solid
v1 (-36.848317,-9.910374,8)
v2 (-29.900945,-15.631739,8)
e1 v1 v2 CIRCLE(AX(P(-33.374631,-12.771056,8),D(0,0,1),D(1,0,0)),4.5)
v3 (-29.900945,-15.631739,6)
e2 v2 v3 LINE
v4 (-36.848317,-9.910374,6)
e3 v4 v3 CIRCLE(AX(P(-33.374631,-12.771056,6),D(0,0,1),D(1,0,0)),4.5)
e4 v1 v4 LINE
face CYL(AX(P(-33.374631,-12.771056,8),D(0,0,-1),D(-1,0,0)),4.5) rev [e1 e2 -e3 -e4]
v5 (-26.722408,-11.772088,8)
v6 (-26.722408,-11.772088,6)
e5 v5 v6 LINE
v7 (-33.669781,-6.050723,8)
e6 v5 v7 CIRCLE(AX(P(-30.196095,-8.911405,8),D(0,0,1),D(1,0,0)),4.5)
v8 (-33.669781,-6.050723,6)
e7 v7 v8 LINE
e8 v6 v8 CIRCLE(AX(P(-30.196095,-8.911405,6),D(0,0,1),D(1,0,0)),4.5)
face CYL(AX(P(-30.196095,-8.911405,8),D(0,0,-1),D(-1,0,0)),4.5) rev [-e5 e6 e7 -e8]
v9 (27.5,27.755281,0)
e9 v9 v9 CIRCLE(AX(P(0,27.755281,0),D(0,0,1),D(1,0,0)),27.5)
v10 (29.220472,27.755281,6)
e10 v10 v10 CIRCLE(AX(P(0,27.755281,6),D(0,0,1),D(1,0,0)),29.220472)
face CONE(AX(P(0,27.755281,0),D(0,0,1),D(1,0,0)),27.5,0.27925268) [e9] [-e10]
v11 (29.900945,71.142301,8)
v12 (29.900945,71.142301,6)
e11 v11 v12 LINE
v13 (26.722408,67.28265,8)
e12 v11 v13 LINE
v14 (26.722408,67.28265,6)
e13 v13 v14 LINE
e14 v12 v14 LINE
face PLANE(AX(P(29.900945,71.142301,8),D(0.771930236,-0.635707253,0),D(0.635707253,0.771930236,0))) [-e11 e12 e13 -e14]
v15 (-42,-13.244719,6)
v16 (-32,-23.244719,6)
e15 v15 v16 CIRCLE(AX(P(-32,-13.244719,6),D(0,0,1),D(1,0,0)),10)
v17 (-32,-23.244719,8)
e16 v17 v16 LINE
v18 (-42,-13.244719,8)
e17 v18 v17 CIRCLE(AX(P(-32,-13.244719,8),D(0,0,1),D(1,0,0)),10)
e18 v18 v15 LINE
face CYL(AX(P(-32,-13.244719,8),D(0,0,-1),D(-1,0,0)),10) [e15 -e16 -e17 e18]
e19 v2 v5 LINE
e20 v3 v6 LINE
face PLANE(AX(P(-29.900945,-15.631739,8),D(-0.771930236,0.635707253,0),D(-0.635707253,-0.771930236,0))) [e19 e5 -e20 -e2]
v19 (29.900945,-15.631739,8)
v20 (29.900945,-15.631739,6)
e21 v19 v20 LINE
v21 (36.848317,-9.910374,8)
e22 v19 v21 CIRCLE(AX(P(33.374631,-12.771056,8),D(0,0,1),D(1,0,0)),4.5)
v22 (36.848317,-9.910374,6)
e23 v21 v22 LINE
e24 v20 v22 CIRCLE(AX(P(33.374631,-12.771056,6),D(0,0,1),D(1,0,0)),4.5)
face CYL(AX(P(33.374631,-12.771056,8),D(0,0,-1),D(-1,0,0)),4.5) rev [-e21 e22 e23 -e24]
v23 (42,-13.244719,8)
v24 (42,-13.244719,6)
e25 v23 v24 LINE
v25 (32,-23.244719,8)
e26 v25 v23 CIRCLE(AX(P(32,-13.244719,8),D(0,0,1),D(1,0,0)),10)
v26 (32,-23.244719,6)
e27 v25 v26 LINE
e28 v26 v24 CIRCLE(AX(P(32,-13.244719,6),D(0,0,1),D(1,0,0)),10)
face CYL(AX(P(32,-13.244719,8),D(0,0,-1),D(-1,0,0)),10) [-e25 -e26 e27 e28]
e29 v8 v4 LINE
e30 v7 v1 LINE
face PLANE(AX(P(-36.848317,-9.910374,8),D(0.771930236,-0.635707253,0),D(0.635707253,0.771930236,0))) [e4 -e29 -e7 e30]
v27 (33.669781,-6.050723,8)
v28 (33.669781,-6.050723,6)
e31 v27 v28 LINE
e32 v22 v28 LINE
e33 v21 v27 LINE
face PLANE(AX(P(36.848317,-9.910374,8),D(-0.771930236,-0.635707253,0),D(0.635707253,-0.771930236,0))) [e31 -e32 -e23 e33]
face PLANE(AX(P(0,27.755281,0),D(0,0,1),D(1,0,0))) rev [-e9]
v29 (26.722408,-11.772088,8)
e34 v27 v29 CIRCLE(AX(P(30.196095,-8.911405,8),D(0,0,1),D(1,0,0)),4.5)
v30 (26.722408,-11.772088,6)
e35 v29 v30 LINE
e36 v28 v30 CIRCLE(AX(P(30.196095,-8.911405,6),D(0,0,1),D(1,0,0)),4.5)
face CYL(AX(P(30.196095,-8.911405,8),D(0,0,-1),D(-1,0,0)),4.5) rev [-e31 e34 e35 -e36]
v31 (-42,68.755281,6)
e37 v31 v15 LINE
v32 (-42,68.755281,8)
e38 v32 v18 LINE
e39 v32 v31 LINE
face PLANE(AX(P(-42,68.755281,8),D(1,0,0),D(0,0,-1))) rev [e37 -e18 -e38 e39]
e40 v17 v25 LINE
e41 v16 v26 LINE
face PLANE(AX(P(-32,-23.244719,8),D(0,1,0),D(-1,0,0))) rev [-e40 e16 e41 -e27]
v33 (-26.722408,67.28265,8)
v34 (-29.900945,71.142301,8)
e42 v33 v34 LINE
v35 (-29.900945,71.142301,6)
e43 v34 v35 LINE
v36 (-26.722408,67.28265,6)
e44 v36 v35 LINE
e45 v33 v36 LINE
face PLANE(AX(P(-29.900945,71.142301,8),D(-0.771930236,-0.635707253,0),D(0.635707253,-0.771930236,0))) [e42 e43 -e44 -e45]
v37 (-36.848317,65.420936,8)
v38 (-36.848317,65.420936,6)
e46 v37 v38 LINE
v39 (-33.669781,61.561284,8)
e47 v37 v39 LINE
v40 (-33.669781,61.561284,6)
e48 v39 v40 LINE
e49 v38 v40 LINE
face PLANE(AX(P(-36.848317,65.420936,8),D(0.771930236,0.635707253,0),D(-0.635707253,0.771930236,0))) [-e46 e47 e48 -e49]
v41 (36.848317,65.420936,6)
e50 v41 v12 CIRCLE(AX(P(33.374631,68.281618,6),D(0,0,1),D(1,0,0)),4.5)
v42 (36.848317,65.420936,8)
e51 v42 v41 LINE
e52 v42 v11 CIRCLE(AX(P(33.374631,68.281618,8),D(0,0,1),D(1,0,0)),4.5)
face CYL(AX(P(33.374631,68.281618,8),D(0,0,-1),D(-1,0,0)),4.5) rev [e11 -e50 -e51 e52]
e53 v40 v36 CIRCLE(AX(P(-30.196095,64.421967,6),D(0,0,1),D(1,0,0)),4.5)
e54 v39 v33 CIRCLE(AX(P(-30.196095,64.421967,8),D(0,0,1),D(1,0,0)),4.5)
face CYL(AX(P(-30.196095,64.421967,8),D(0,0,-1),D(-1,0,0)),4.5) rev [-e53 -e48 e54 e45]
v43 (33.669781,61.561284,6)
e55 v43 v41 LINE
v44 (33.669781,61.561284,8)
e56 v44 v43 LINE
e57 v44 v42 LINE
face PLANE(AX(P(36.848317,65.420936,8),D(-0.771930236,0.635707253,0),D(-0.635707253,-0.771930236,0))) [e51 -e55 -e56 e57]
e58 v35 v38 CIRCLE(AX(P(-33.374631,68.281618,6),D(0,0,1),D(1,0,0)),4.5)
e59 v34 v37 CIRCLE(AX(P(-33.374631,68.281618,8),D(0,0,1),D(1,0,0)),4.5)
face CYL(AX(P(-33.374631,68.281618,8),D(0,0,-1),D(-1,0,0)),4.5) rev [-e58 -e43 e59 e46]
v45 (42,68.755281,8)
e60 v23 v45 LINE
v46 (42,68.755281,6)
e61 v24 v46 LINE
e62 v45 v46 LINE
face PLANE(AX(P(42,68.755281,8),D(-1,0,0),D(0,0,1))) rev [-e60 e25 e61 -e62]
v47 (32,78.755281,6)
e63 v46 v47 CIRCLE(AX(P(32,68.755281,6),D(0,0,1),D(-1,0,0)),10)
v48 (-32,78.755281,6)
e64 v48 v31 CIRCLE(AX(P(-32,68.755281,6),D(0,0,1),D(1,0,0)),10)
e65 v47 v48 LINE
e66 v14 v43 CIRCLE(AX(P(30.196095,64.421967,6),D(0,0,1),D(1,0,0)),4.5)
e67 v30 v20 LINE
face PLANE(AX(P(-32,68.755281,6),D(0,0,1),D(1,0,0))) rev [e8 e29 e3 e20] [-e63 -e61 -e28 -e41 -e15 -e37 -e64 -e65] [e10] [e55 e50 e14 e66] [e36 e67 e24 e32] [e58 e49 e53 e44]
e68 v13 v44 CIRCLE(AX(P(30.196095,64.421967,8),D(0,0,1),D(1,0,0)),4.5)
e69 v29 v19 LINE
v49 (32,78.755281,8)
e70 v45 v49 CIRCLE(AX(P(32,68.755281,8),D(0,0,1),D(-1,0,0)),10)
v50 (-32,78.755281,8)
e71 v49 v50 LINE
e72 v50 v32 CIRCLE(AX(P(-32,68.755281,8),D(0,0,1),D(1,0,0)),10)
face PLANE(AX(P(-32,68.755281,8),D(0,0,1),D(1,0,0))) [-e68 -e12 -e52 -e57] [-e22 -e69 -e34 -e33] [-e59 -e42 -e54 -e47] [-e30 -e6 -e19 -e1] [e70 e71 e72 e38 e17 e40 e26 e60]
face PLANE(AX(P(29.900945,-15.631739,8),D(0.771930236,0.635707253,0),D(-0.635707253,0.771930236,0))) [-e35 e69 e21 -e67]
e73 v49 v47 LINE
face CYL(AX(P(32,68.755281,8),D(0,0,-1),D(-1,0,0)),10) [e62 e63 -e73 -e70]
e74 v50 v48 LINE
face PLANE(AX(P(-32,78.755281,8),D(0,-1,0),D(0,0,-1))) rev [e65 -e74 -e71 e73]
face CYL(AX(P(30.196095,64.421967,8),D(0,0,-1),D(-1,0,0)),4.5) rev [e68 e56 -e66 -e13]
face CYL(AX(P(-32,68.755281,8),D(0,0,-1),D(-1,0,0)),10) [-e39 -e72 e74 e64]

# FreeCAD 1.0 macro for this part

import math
import FreeCAD as App
import Part
import Sketcher
from FreeCAD import Vector
Q = App.Units.Quantity

doc = App.newDocument("Part")
body = doc.addObject("PartDesign::Body", "Body")

# Sketch on XY plane
sketch1 = doc.addObject("Sketcher::SketchObject", "Sketch")
body.addObject(sketch1)
sketch1.AttachmentSupport = (doc.XY_Plane, [""])
sketch1.MapMode = "FlatFace"
sketch1.addGeometry(Part.Circle(Vector(0, 28, 0), Vector(0, 0, 1), 28), False)
sketch1.addConstraint([
    Sketcher.Constraint("PointOnObject", 0, 3, -2),
    Sketcher.Constraint("Diameter", 0, Q("55 mm")),
    Sketcher.Constraint("DistanceY", -1, 1, 0, 3, Q("27.755281 mm")),
])
pad1 = doc.addObject("PartDesign::Pad", "Pad")
body.addObject(pad1)
pad1.Profile = sketch1
pad1.Length = 6
pad1.TaperAngle = 16

# Sketch on XY plane
sketch2 = doc.addObject("Sketcher::SketchObject", "Sketch001")
body.addObject(sketch2)
sketch2.AttachmentSupport = (doc.XY_Plane, [""])
sketch2.MapMode = "FlatFace"
sketch2.AttachmentOffset = App.Placement(Vector(0, 0, 6), App.Rotation())
sketch2.addGeometry([
    Part.LineSegment(Vector(32, 78.8, 0), Vector(-32, 78.8, 0)),  # 0
    Part.ArcOfCircle(Part.Circle(Vector(-32, 68.8, 0), Vector(0, 0, 1), 10), math.radians(90), math.radians(180)),  # 1
    Part.LineSegment(Vector(-42, 68.8, 0), Vector(-42, -13.2, 0)),  # 2
    Part.ArcOfCircle(Part.Circle(Vector(-32, -13.2, 0), Vector(0, 0, 1), 10), math.radians(180), math.radians(270)),  # 3
    Part.LineSegment(Vector(-32, -23.2, 0), Vector(32, -23.2, 0)),  # 4
    Part.ArcOfCircle(Part.Circle(Vector(32, -13.2, 0), Vector(0, 0, 1), 10), math.radians(-90), math.radians(0)),  # 5
    Part.LineSegment(Vector(42, -13.2, 0), Vector(42, 68.8, 0)),  # 6
    Part.ArcOfCircle(Part.Circle(Vector(32, 68.8, 0), Vector(0, 0, 1), 10), math.radians(0), math.radians(90)),  # 7
    Part.LineSegment(Vector(29.9, -15.6, 0), Vector(26.7, -11.8, 0)),  # 8
    Part.ArcOfCircle(Part.Circle(Vector(30.2, -8.9, 0), Vector(0, 0, 1), 4.5), math.radians(39), math.radians(219)),  # 9
    Part.LineSegment(Vector(33.7, -6.1, 0), Vector(36.8, -9.9, 0)),  # 10
    Part.ArcOfCircle(Part.Circle(Vector(33.4, -12.8, 0), Vector(0, 0, 1), 4.5), math.radians(-141), math.radians(39)),  # 11
    Part.LineSegment(Vector(-36.8, -9.9, 0), Vector(-33.7, -6.1, 0)),  # 12
    Part.ArcOfCircle(Part.Circle(Vector(-30.2, -8.9, 0), Vector(0, 0, 1), 4.5), math.radians(-39), math.radians(141)),  # 13
    Part.LineSegment(Vector(-26.7, -11.8, 0), Vector(-29.9, -15.6, 0)),  # 14
    Part.ArcOfCircle(Part.Circle(Vector(-33.4, -12.8, 0), Vector(0, 0, 1), 4.5), math.radians(141), math.radians(321)),  # 15
    Part.LineSegment(Vector(36.8, 65.4, 0), Vector(33.7, 61.6, 0)),  # 16
    Part.ArcOfCircle(Part.Circle(Vector(30.2, 64.4, 0), Vector(0, 0, 1), 4.5), math.radians(141), math.radians(321)),  # 17
    Part.LineSegment(Vector(26.7, 67.3, 0), Vector(29.9, 71.1, 0)),  # 18
    Part.ArcOfCircle(Part.Circle(Vector(33.4, 68.3, 0), Vector(0, 0, 1), 4.5), math.radians(-39), math.radians(141)),  # 19
    Part.LineSegment(Vector(-29.9, 71.1, 0), Vector(-26.7, 67.3, 0)),  # 20
    Part.ArcOfCircle(Part.Circle(Vector(-30.2, 64.4, 0), Vector(0, 0, 1), 4.5), math.radians(-141), math.radians(39)),  # 21
    Part.LineSegment(Vector(-33.7, 61.6, 0), Vector(-36.8, 65.4, 0)),  # 22
    Part.ArcOfCircle(Part.Circle(Vector(-33.4, 68.3, 0), Vector(0, 0, 1), 4.5), math.radians(39), math.radians(219)),  # 23
], False)
sketch2.addConstraint([
    Sketcher.Constraint("Tangent", 0, 2, 1, 1),
    Sketcher.Constraint("Tangent", 1, 2, 2, 1),
    Sketcher.Constraint("Tangent", 2, 2, 3, 1),
    Sketcher.Constraint("Tangent", 3, 2, 4, 1),
    Sketcher.Constraint("Tangent", 4, 2, 5, 1),
    Sketcher.Constraint("Tangent", 5, 2, 6, 1),
    Sketcher.Constraint("Tangent", 6, 2, 7, 1),
    Sketcher.Constraint("Tangent", 7, 2, 0, 1),
    Sketcher.Constraint("Tangent", 8, 2, 9, 2),
    Sketcher.Constraint("Tangent", 9, 1, 10, 1),
    Sketcher.Constraint("Tangent", 10, 2, 11, 2),
    Sketcher.Constraint("Tangent", 11, 1, 8, 1),
    Sketcher.Constraint("Tangent", 12, 2, 13, 2),
    Sketcher.Constraint("Tangent", 13, 1, 14, 1),
    Sketcher.Constraint("Tangent", 14, 2, 15, 2),
    Sketcher.Constraint("Tangent", 15, 1, 12, 1),
    Sketcher.Constraint("Tangent", 16, 2, 17, 2),
    Sketcher.Constraint("Tangent", 17, 1, 18, 1),
    Sketcher.Constraint("Tangent", 18, 2, 19, 2),
    Sketcher.Constraint("Tangent", 19, 1, 16, 1),
    Sketcher.Constraint("Tangent", 20, 2, 21, 2),
    Sketcher.Constraint("Tangent", 21, 1, 22, 1),
    Sketcher.Constraint("Tangent", 22, 2, 23, 2),
    Sketcher.Constraint("Tangent", 23, 1, 20, 1),
    Sketcher.Constraint("Horizontal", 0),
    Sketcher.Constraint("Vertical", 2),
    Sketcher.Constraint("Horizontal", 4),
    Sketcher.Constraint("Vertical", 6),
    Sketcher.Constraint("Equal", 1, 3),
    Sketcher.Constraint("Equal", 3, 5),
    Sketcher.Constraint("Equal", 5, 7),
    Sketcher.Constraint("Equal", 9, 11),
    Sketcher.Constraint("Equal", 11, 13),
    Sketcher.Constraint("Equal", 13, 15),
    Sketcher.Constraint("Equal", 15, 17),
    Sketcher.Constraint("Equal", 17, 19),
    Sketcher.Constraint("Equal", 19, 21),
    Sketcher.Constraint("Equal", 21, 23),
    Sketcher.Constraint("Symmetric", 9, 3, 13, 3, -2),
    Sketcher.Constraint("Symmetric", 11, 3, 15, 3, -2),
    Sketcher.Constraint("Symmetric", 17, 3, 21, 3, -2),
    Sketcher.Constraint("Symmetric", 19, 3, 23, 3, -2),
    Sketcher.Constraint("Parallel", 14, 16),
    Sketcher.Constraint("Vertical", 9, 3, 17, 3),
    Sketcher.Constraint("Vertical", 11, 3, 19, 3),
    Sketcher.Constraint("Radius", 1, Q("10 mm")),
    Sketcher.Constraint("Radius", 9, Q("4.5 mm")),
    Sketcher.Constraint("DistanceX", 0, 2, 0, 1, Q("64 mm")),
    Sketcher.Constraint("DistanceY", 2, 2, 2, 1, Q("82 mm")),
    Sketcher.Constraint("Distance", 8, Q("5 mm")),
    Sketcher.Constraint("DistanceX", 1, 3, -1, 1, Q("32 mm")),
    Sketcher.Constraint("DistanceY", -1, 1, 18, 2, Q("71.142301 mm")),
    Sketcher.Constraint("DistanceY", -1, 1, 1, 3, Q("68.755281 mm")),
    Sketcher.Constraint("DistanceX", -1, 1, 11, 3, Q("33.374631 mm")),
    Sketcher.Constraint("DistanceY", -1, 1, 19, 3, Q("68.281618 mm")),
    Sketcher.Constraint("DistanceY", 11, 1, -1, 1, Q("15.631739 mm")),
])
pad2 = doc.addObject("PartDesign::Pad", "Pad001")
body.addObject(pad2)
pad2.Profile = sketch2
pad2.Length = 2

doc.recompute()
